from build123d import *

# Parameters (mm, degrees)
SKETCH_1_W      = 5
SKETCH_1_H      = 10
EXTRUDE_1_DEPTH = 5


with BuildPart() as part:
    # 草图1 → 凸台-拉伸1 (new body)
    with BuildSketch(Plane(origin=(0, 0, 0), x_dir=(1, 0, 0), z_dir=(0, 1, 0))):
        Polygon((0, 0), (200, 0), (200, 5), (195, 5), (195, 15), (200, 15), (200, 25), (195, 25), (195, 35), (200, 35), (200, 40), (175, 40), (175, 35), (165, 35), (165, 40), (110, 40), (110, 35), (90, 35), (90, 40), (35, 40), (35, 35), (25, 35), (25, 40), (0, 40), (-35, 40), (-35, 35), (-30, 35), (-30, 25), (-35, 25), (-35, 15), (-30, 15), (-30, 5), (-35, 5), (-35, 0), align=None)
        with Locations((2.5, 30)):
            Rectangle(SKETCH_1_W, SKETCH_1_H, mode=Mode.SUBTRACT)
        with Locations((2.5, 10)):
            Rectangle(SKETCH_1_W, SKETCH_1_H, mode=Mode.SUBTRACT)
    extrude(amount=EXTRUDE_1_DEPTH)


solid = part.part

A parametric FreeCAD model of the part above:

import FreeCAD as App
import Part
import Sketcher
from FreeCAD import Vector
Q = App.Units.Quantity


def add_polygon(sketch, points):
    """Adds a closed chain of lines whose ends are joined by coincident constraints."""
    first, n = sketch.GeometryCount, len(points)
    for a, b in zip(points, points[1:] + points[:1]):
        sketch.addGeometry(Part.LineSegment(App.Vector(*a, 0), App.Vector(*b, 0)), False)
    for i in range(n):
        sketch.addConstraint(Sketcher.Constraint("Coincident", first + i, 2, first + (i + 1) % n, 1))

doc = App.newDocument("Part")
body = doc.addObject("PartDesign::Body", "Body")

# Sketch on XZ plane
sketch1 = body.newObject("Sketcher::SketchObject", "Sketch")
sketch1.AttachmentSupport = (doc.getObject("XZ_Plane"), [""])
sketch1.MapMode = "FlatFace"
add_polygon(sketch1, [(200, 0), (200, -5), (195, -5), (195, -15), (200, -15), (200, -25), (195, -25), (195, -35), (200, -35), (200, -40), (175, -40), (175, -35), (165, -35), (165, -40), (110, -40), (110, -35), (90, -35), (90, -40), (35, -40), (35, -35), (25, -35), (25, -40), (-35, -40), (-35, -35), (-30, -35), (-30, -25), (-35, -25), (-35, -15), (-30, -15), (-30, -5), (-35, -5), (-35, 0)])  # lines 0-31
add_polygon(sketch1, [(5, -5), (0, -5), (0, -15), (5, -15)])  # lines 32-35
add_polygon(sketch1, [(5, -25), (0, -25), (0, -35), (5, -35)])  # lines 36-39
sketch1.addConstraint(Sketcher.Constraint("Vertical", 0))
sketch1.addConstraint(Sketcher.Constraint("Horizontal", 1))
sketch1.addConstraint(Sketcher.Constraint("Vertical", 2))
sketch1.addConstraint(Sketcher.Constraint("Horizontal", 3))
sketch1.addConstraint(Sketcher.Constraint("Vertical", 4))
sketch1.addConstraint(Sketcher.Constraint("Horizontal", 5))
sketch1.addConstraint(Sketcher.Constraint("Vertical", 6))
sketch1.addConstraint(Sketcher.Constraint("Horizontal", 7))
sketch1.addConstraint(Sketcher.Constraint("Vertical", 8))
sketch1.addConstraint(Sketcher.Constraint("Horizontal", 9))
sketch1.addConstraint(Sketcher.Constraint("Vertical", 10))
sketch1.addConstraint(Sketcher.Constraint("Horizontal", 11))
sketch1.addConstraint(Sketcher.Constraint("Vertical", 12))
sketch1.addConstraint(Sketcher.Constraint("Horizontal", 13))
sketch1.addConstraint(Sketcher.Constraint("Vertical", 14))
sketch1.addConstraint(Sketcher.Constraint("Horizontal", 15))
sketch1.addConstraint(Sketcher.Constraint("Vertical", 16))
sketch1.addConstraint(Sketcher.Constraint("Horizontal", 17))
sketch1.addConstraint(Sketcher.Constraint("Vertical", 18))
sketch1.addConstraint(Sketcher.Constraint("Horizontal", 19))
sketch1.addConstraint(Sketcher.Constraint("Vertical", 20))
sketch1.addConstraint(Sketcher.Constraint("Horizontal", 21))
sketch1.addConstraint(Sketcher.Constraint("Vertical", 22))
sketch1.addConstraint(Sketcher.Constraint("Horizontal", 23))
sketch1.addConstraint(Sketcher.Constraint("Vertical", 24))
sketch1.addConstraint(Sketcher.Constraint("Horizontal", 25))
sketch1.addConstraint(Sketcher.Constraint("Vertical", 26))
sketch1.addConstraint(Sketcher.Constraint("Horizontal", 27))
sketch1.addConstraint(Sketcher.Constraint("Vertical", 28))
sketch1.addConstraint(Sketcher.Constraint("Horizontal", 29))
sketch1.addConstraint(Sketcher.Constraint("Vertical", 30))
sketch1.addConstraint(Sketcher.Constraint("Horizontal", 31))
sketch1.addConstraint(Sketcher.Constraint("Horizontal", 32))
sketch1.addConstraint(Sketcher.Constraint("Vertical", 33))
sketch1.addConstraint(Sketcher.Constraint("Horizontal", 34))
sketch1.addConstraint(Sketcher.Constraint("Vertical", 35))
sketch1.addConstraint(Sketcher.Constraint("Horizontal", 36))
sketch1.addConstraint(Sketcher.Constraint("Vertical", 37))
sketch1.addConstraint(Sketcher.Constraint("Horizontal", 38))
sketch1.addConstraint(Sketcher.Constraint("Vertical", 39))
sketch1.addConstraint(Sketcher.Constraint("Symmetric", 17, 2, 21, 2, -2))
sketch1.addConstraint(Sketcher.Constraint("PointOnObject", 30, 2, -1))
sketch1.addConstraint(Sketcher.Constraint("PointOnObject", 32, 2, -2))
sketch1.addConstraint(Sketcher.Constraint("PointOnObject", 36, 2, -2))
sketch1.addConstraint(Sketcher.Constraint("Horizontal", 7, 2, 10, 2))
sketch1.addConstraint(Sketcher.Constraint("Horizontal", 9, 2, 12, 2))
sketch1.addConstraint(Sketcher.Constraint("Horizontal", 11, 2, 14, 2))
sketch1.addConstraint(Sketcher.Constraint("Horizontal", 13, 2, 16, 2))
sketch1.addConstraint(Sketcher.Constraint("Horizontal", 15, 2, 18, 2))
sketch1.addConstraint(Sketcher.Constraint("Horizontal", 19, 2, 22, 2))
sketch1.addConstraint(Sketcher.Constraint("Horizontal", 5, 2, 24, 2))
sketch1.addConstraint(Sketcher.Constraint("Horizontal", 3, 2, 26, 2))
sketch1.addConstraint(Sketcher.Constraint("Horizontal", 1, 2, 28, 2))
sketch1.addConstraint(Sketcher.Constraint("Horizontal", 29, 2, 32, 2))
sketch1.addConstraint(Sketcher.Constraint("Horizontal", 27, 2, 33, 2))
sketch1.addConstraint(Sketcher.Constraint("Horizontal", 25, 2, 36, 2))
sketch1.addConstraint(Sketcher.Constraint("Horizontal", 23, 2, 37, 2))
sketch1.addConstraint(Sketcher.Constraint("Vertical", 0, 2, 3, 2))
sketch1.addConstraint(Sketcher.Constraint("Vertical", 2, 2, 5, 2))
sketch1.addConstraint(Sketcher.Constraint("Vertical", 4, 2, 7, 2))
sketch1.addConstraint(Sketcher.Constraint("Vertical", 22, 2, 25, 2))
sketch1.addConstraint(Sketcher.Constraint("Vertical", 24, 2, 27, 2))
sketch1.addConstraint(Sketcher.Constraint("Vertical", 26, 2, 29, 2))
sketch1.addConstraint(Sketcher.Constraint("Vertical", 35, 2, 38, 2))
sketch1.addConstraint(Sketcher.Constraint("Equal", 13, 17))
sketch1.addConstraint(Sketcher.Constraint("Equal", 11, 19))
sketch1.addConstraint(Sketcher.Constraint("Equal", 7, 23))
sketch1.addConstraint(Sketcher.Constraint("Equal", 29, 32))
sketch1.addConstraint(Sketcher.Constraint("Equal", 38, 0))
sketch1.addConstraint(Sketcher.Constraint("Equal", 19, 2))
sketch1.addConstraint(Sketcher.Constraint("Equal", 2, 4))
sketch1.addConstraint(Sketcher.Constraint("Equal", 4, 6))
sketch1.addConstraint(Sketcher.Constraint("Equal", 0, 8))
sketch1.addConstraint(Sketcher.Constraint("DistanceX", 1, 2, 1, 1, Q("5 mm")))
sketch1.addConstraint(Sketcher.Constraint("DistanceX", 9, 2, 9, 1, Q("25 mm")))
sketch1.addConstraint(Sketcher.Constraint("DistanceX", 11, 2, 11, 1, Q("10 mm")))
sketch1.addConstraint(Sketcher.Constraint("DistanceX", 13, 2, 13, 1, Q("55 mm")))
sketch1.addConstraint(Sketcher.Constraint("DistanceX", 15, 2, 15, 1, Q("20 mm")))
sketch1.addConstraint(Sketcher.Constraint("DistanceX", 21, 2, 21, 1, Q("60 mm")))
pad1 = body.newObject("PartDesign::Pad", "Pad")
pad1.Profile = sketch1
pad1.Length = 5
pad1.Reversed = True

doc.recompute()
